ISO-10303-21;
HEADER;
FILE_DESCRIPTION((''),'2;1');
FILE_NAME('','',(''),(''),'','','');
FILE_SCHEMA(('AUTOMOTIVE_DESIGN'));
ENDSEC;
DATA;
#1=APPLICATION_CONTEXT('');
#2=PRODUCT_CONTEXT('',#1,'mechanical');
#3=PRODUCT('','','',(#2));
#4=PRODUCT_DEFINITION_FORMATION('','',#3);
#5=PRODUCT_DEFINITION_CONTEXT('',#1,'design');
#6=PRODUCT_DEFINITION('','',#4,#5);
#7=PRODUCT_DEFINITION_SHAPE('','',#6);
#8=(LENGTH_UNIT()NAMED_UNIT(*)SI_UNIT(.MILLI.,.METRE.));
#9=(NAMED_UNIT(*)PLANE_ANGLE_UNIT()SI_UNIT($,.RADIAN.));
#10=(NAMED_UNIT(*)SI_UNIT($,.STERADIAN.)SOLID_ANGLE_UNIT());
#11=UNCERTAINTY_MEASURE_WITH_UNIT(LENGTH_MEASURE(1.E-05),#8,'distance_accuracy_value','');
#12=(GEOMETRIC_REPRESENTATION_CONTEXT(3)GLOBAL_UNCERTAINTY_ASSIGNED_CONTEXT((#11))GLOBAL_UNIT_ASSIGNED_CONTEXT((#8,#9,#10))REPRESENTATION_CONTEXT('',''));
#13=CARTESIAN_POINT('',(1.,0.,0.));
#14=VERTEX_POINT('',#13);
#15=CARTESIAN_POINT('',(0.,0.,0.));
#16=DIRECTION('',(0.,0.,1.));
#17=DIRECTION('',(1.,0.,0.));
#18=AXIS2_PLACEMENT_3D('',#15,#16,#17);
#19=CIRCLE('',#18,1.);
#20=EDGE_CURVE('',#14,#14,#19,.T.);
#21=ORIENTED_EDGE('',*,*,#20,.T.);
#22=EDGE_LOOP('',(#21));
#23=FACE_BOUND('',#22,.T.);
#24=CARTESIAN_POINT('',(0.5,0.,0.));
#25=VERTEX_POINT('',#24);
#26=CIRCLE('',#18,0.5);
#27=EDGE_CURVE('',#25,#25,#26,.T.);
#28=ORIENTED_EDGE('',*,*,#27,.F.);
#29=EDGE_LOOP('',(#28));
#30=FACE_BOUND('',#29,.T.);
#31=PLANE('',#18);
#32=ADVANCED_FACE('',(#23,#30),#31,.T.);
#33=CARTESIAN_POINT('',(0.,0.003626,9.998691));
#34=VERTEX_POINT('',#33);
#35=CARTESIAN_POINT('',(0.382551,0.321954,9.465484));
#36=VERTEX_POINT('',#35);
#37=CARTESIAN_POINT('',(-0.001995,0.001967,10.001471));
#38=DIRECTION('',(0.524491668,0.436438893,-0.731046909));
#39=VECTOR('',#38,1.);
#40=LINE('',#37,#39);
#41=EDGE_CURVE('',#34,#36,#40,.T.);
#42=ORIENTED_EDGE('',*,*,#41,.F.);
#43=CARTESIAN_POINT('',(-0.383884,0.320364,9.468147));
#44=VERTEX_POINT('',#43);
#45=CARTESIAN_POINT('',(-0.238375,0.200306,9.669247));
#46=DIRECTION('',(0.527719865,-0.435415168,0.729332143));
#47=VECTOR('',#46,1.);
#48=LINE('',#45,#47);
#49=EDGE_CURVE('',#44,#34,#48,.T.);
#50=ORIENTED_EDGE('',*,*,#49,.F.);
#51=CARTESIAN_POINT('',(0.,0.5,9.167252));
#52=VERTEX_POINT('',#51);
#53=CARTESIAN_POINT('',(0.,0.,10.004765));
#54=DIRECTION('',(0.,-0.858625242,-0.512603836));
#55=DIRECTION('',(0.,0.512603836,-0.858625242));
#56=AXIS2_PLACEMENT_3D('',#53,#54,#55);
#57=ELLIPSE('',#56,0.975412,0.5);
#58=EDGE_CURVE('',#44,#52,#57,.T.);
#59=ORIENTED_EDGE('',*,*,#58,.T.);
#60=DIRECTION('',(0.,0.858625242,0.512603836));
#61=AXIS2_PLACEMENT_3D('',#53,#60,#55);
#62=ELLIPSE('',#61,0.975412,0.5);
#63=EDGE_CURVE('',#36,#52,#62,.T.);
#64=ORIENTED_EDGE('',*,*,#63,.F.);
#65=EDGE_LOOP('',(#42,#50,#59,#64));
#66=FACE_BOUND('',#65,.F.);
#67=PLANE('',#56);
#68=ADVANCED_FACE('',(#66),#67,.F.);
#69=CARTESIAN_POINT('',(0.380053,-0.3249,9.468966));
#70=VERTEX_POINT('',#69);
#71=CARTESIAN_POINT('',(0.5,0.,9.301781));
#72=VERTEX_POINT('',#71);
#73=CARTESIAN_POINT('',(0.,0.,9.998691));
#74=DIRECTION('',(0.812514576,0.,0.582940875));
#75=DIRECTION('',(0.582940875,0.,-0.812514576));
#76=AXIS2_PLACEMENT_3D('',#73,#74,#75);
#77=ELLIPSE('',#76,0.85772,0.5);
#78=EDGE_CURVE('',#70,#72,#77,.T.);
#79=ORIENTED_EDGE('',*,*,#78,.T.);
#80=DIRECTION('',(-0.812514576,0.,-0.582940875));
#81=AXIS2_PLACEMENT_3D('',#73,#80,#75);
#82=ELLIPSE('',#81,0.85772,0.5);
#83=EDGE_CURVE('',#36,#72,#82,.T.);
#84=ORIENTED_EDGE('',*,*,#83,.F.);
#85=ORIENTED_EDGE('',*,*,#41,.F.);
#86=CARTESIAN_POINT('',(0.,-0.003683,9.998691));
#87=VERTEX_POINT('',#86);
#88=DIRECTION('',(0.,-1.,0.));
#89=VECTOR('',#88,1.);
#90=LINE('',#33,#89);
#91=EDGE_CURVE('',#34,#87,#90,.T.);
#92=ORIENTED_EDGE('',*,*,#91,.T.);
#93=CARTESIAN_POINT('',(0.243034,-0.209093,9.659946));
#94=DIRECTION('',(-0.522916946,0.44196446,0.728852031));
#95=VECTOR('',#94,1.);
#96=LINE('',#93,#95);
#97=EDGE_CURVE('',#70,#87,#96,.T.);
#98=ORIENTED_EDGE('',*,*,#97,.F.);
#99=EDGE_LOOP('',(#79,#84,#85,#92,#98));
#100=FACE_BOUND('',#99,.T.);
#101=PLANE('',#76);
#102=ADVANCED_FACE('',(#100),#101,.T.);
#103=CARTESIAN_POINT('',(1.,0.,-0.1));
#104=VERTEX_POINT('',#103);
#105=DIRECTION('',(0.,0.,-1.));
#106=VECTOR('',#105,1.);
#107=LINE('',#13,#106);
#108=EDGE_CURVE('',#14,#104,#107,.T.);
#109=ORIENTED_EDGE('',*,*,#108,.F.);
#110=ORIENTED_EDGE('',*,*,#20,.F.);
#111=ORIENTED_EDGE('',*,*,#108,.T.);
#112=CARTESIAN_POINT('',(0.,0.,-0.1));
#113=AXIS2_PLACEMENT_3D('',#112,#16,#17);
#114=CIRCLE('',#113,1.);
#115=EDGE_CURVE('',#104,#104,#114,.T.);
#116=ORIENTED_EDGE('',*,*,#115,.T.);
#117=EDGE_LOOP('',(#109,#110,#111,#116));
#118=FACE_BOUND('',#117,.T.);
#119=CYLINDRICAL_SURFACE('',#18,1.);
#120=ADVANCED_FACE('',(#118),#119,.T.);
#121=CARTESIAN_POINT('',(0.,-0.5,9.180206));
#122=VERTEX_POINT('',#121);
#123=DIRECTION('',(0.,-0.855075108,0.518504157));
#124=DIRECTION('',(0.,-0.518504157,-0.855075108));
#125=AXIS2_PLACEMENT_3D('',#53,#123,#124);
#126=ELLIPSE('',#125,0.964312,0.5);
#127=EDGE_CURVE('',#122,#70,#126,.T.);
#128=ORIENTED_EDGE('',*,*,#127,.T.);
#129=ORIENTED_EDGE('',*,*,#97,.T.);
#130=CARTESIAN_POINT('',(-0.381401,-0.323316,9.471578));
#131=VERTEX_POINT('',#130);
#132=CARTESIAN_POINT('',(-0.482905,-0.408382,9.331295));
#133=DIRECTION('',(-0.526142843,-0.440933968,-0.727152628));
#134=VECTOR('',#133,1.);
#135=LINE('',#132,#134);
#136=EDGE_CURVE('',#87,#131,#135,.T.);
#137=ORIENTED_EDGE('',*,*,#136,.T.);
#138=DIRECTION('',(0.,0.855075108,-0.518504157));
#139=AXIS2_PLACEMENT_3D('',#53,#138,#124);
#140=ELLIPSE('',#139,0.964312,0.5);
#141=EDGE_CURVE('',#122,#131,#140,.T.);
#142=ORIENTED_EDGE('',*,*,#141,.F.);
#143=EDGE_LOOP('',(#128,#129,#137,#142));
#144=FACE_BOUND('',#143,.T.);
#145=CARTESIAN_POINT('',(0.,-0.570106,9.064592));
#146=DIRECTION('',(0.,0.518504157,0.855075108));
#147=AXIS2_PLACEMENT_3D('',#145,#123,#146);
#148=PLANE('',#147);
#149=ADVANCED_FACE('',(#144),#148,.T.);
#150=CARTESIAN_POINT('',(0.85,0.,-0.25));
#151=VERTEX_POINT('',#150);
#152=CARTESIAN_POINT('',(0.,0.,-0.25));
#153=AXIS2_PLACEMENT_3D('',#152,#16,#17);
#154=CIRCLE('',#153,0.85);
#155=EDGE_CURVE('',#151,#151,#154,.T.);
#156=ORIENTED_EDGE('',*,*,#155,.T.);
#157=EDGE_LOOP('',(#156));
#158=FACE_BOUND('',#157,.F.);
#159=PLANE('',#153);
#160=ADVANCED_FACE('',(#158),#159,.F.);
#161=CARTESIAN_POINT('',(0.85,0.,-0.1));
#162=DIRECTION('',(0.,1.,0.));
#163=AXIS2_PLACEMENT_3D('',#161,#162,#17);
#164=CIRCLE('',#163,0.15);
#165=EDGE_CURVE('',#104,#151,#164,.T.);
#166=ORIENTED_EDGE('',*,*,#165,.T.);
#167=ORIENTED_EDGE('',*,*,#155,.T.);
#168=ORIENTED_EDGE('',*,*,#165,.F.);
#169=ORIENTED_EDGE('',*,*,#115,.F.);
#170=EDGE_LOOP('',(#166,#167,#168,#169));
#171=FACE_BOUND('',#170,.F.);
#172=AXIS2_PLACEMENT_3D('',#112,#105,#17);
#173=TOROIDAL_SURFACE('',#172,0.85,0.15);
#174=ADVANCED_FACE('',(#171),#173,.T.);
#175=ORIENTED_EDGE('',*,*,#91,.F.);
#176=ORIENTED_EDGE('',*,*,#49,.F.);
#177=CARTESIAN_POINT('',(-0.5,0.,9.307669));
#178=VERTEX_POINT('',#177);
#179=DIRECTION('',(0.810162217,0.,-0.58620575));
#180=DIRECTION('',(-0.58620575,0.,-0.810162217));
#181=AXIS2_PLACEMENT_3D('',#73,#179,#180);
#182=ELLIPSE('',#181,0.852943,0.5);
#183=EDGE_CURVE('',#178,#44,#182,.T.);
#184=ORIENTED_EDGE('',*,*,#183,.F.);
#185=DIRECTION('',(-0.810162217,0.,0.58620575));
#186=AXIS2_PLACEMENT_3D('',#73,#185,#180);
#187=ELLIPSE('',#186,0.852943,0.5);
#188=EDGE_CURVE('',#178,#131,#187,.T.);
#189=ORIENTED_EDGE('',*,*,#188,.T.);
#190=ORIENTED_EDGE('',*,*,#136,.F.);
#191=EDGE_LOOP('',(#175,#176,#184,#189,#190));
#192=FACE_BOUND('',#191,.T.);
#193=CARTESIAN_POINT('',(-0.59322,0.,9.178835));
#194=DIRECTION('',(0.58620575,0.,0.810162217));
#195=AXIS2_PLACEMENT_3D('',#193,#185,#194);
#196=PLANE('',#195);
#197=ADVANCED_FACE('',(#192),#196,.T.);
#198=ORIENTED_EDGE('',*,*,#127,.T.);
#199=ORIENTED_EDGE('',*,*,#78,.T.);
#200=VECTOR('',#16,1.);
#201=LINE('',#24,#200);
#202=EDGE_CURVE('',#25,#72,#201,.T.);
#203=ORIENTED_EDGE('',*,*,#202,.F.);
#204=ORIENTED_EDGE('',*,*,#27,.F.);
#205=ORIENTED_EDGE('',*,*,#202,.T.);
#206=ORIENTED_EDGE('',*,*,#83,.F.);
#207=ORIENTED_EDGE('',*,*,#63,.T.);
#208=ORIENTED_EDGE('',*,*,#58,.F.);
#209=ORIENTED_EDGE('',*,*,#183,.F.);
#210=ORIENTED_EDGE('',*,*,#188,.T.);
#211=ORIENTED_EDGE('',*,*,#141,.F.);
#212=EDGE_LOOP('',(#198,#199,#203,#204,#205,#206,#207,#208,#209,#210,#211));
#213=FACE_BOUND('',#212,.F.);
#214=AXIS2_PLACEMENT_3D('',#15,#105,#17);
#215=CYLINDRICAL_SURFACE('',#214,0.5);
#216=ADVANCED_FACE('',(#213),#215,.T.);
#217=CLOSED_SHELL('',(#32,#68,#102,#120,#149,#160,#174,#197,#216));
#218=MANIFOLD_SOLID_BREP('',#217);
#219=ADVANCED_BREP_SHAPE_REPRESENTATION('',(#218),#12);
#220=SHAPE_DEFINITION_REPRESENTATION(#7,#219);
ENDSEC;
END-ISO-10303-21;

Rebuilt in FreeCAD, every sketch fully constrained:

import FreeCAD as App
import Part
import Sketcher
from FreeCAD import Vector


def edges_at(feature, points):
    """Names of the edges that pass closest to the given points."""
    edges = feature.Shape.Edges
    near = lambda p: min(range(len(edges)), key=lambda i: edges[i].distToShape(Part.Vertex(*p))[0])
    return sorted({f"Edge{near(p) + 1}" for p in points})


def add_polygon(sketch, points):
    """Adds a closed chain of lines whose ends are joined by coincident constraints."""
    first, n = sketch.GeometryCount, len(points)
    for a, b in zip(points, points[1:] + points[:1]):
        sketch.addGeometry(Part.LineSegment(App.Vector(*a, 0), App.Vector(*b, 0)), False)
    for i in range(n):
        sketch.addConstraint(Sketcher.Constraint("Coincident", first + i, 2, first + (i + 1) % n, 1))

doc = App.newDocument("Part")
body = doc.addObject("PartDesign::Body", "Body")

# Sketch on XY plane
sketch1 = body.newObject("Sketcher::SketchObject", "Sketch")
sketch1.AttachmentSupport = (doc.getObject("XY_Plane"), [""])
sketch1.MapMode = "FlatFace"
sketch1.addGeometry(Part.Circle(Vector(0, 0, 0), Vector(0, 0, 1), 0.5), False)
sketch1.addConstraint([
    Sketcher.Constraint("Coincident", 0, 3, -1, 1),
    Sketcher.Constraint("Diameter", 0, 1.0),
])
pad1 = body.newObject("PartDesign::Pad", "Pad")
pad1.Profile = sketch1
pad1.Length = 10

# Sketch on XY plane
sketch2 = body.newObject("Sketcher::SketchObject", "Sketch001")
sketch2.AttachmentSupport = (doc.getObject("XY_Plane"), [""])
sketch2.MapMode = "FlatFace"
sketch2.addGeometry(Part.Circle(Vector(0, 0, 0), Vector(0, 0, 1), 1), False)
sketch2.addConstraint([
    Sketcher.Constraint("Coincident", 0, 3, -1, 1),
    Sketcher.Constraint("Diameter", 0, 2.0),
])
pad2 = body.newObject("PartDesign::Pad", "Pad001")
pad2.Profile = sketch2
pad2.Length = 0.25
pad2.Reversed = True
doc.recompute()

fillet = body.newObject("PartDesign::Fillet", "Fillet")
fillet.Base = (pad2, edges_at(pad2, [(-1, 0, -0.25)]))
fillet.Radius = 0.15

# Sketch on YZ plane
sketch3 = body.newObject("Sketcher::SketchObject", "Sketch002")
sketch3.AttachmentSupport = (doc.getObject("YZ_Plane"), [""])
sketch3.MapMode = "FlatFace"
add_polygon(sketch3, [(-0.6, 9.1), (0, 10), (0.6, 9), (0.6, 10.1), (-0.7, 10.1)])  # lines 0-4
sketch3.addConstraint([
    Sketcher.Constraint("Vertical", 2),
    Sketcher.Constraint("Horizontal", 3),
    Sketcher.Constraint("PointOnObject", 0, 2, -2),
    Sketcher.Constraint("DistanceY", 2, 1, 2, 2, 1.055769),
    Sketcher.Constraint("Distance", 0, 1.099521),
    Sketcher.Constraint("DistanceX", 3, 2, 3, 1, 1.236868),
    Sketcher.Constraint("DistanceX", -1, 1, 1, 2, 0.581992),
    Sketcher.Constraint("DistanceY", 1, 2, 0, 2, 0.974852),
    Sketcher.Constraint("DistanceX", 3, 2, 4, 2, 0.08477),
    Sketcher.Constraint("DistanceY", -1, 1, 0, 2, 10.004765),
])
pocket1 = body.newObject("PartDesign::Pocket", "Pocket")
pocket1.Profile = sketch3
pocket1.Type = "ThroughAll"
pocket1.Midplane = True

# Sketch on XZ plane
sketch4 = body.newObject("Sketcher::SketchObject", "Sketch003")
sketch4.AttachmentSupport = (doc.getObject("XZ_Plane"), [""])
sketch4.MapMode = "FlatFace"
add_polygon(sketch4, [(-0.6, 9.2), (0, 10), (0.6, 9.2), (0.6, 10.3), (-0.6, 10.3)])  # lines 0-4
sketch4.addConstraint([
    Sketcher.Constraint("Horizontal", 3),
    Sketcher.Constraint("Vertical", 4),
    Sketcher.Constraint("PointOnObject", 0, 2, -2),
    Sketcher.Constraint("DistanceX", 3, 2, 3, 1, 1.231332),
    Sketcher.Constraint("DistanceY", 0, 2, 2, 2, 0.300098),
    Sketcher.Constraint("DistanceY", 4, 2, 4, 1, 1.119955),
    Sketcher.Constraint("DistanceY", -1, 1, 0, 2, 9.998691),
    Sketcher.Constraint("DistanceX", -1, 1, 1, 2, 0.579329),
    Sketcher.Constraint("DistanceY", -1, 1, 1, 2, 9.19121),
    Sketcher.Constraint("DistanceX", -1, 1, 2, 2, 0.638112),
])
pocket2 = body.newObject("PartDesign::Pocket", "Pocket001")
pocket2.Profile = sketch4
pocket2.Type = "ThroughAll"
pocket2.Midplane = True

doc.recompute()
